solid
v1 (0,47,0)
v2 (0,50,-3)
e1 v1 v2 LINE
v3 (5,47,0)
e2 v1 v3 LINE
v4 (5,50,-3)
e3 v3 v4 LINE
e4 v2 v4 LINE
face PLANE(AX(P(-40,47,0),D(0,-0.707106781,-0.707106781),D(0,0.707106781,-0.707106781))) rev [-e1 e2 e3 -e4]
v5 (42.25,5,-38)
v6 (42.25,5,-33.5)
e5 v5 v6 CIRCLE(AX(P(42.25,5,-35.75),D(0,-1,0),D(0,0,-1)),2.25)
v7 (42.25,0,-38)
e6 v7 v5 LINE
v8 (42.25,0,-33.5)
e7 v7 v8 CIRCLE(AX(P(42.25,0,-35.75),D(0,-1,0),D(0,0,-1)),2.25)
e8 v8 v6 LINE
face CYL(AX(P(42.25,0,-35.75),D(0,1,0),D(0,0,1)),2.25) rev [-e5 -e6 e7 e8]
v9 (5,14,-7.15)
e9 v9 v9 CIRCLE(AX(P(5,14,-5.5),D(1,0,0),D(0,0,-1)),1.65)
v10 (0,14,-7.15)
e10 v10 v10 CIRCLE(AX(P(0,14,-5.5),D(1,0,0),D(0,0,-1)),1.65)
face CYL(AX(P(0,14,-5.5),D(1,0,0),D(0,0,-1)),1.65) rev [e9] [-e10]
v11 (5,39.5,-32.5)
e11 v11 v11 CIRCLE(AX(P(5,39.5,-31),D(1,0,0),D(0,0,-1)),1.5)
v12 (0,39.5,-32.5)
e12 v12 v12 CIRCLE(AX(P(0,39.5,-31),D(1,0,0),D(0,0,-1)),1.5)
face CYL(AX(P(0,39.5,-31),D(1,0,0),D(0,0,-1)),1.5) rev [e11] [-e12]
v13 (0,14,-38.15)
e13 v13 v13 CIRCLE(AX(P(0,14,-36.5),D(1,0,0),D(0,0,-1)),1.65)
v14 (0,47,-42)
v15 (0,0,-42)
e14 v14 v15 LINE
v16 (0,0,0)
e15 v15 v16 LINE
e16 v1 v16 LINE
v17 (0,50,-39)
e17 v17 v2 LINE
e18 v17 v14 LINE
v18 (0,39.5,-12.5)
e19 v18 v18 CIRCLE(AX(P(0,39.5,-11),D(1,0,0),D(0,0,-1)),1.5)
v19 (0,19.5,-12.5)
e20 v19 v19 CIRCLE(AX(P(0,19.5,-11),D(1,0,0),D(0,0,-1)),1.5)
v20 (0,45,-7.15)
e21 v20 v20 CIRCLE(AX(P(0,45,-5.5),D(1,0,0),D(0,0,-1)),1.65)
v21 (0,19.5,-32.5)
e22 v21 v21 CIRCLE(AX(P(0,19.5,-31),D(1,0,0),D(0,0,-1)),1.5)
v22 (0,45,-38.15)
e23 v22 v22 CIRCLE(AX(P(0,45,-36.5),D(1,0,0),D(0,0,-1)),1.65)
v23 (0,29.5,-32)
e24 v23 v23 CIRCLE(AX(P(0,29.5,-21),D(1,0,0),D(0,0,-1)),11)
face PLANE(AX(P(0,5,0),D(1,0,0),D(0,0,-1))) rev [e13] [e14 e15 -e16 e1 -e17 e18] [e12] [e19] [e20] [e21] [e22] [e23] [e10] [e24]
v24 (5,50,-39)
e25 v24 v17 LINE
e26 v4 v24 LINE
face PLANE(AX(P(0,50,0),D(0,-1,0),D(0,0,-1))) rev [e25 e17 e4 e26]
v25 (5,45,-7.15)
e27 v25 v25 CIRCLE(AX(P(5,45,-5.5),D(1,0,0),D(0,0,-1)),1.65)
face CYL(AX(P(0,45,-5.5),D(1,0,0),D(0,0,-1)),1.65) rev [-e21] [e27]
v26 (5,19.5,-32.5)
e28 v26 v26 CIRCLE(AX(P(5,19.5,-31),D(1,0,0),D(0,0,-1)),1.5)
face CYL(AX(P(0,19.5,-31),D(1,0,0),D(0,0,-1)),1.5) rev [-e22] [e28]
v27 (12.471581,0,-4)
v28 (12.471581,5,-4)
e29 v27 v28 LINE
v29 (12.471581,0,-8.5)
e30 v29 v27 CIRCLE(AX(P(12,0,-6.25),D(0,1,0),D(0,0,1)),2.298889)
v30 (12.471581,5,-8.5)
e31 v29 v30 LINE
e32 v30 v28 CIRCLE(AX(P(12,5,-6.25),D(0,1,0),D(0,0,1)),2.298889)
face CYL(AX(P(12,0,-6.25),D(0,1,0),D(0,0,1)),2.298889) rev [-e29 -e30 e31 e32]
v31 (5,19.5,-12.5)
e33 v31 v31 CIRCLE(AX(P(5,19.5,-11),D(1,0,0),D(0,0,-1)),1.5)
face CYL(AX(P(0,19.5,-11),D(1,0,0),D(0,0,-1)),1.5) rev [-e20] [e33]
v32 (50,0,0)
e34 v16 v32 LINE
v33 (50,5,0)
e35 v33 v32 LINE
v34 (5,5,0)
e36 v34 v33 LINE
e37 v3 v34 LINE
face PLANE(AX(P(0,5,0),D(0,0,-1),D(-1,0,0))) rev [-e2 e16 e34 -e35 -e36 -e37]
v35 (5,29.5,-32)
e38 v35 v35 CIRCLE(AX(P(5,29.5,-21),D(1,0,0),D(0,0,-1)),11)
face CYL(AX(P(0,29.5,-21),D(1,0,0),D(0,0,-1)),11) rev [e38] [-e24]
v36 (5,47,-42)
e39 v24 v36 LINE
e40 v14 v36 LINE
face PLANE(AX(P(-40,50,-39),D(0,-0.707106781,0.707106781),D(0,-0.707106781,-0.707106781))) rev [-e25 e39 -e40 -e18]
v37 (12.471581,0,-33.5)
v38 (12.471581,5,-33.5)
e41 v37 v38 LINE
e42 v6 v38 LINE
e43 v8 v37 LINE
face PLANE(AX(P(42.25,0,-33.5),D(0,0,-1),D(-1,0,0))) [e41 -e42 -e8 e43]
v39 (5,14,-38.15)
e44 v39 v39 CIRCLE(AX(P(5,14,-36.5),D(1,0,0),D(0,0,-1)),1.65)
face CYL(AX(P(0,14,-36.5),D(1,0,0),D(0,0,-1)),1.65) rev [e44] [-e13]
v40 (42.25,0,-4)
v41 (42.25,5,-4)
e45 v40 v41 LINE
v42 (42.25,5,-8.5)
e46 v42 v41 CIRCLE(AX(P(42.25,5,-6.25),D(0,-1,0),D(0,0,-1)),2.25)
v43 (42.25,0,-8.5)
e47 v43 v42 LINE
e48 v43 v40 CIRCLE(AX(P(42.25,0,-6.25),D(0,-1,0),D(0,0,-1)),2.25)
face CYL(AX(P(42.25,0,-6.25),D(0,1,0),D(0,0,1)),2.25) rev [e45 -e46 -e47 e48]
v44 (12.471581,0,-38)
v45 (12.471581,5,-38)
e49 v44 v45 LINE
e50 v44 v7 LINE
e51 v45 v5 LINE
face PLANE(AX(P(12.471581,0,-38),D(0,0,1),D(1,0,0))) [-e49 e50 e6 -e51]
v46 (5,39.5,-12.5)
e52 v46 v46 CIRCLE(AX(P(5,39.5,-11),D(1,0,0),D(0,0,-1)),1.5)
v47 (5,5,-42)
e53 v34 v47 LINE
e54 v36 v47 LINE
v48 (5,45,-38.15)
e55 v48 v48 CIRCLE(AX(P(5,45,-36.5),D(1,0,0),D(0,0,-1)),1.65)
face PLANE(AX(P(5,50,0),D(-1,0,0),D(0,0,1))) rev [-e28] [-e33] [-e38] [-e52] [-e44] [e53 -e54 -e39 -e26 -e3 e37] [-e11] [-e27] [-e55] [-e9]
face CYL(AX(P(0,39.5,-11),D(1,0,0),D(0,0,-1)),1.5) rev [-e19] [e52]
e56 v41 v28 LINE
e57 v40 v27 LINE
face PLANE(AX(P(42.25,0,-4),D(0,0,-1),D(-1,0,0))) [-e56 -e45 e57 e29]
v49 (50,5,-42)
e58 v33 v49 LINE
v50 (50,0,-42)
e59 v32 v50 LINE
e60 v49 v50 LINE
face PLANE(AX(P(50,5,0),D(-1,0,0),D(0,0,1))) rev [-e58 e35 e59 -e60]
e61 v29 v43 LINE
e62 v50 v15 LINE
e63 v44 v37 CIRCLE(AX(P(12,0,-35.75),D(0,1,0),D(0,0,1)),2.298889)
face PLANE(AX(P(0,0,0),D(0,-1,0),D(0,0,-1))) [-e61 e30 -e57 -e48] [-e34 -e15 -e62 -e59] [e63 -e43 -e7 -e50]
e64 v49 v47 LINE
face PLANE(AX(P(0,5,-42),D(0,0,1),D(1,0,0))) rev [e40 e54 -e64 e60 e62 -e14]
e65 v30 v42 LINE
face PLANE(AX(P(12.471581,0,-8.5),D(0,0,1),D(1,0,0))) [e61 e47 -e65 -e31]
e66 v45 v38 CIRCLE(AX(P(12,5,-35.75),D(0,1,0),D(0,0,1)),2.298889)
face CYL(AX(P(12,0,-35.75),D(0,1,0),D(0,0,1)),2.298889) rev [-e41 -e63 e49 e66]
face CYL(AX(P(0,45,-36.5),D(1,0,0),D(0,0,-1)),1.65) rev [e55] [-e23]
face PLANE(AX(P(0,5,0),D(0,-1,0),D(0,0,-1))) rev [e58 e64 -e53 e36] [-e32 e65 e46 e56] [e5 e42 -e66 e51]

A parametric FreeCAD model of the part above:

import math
import FreeCAD as App
import Part
import Sketcher
from FreeCAD import Vector


def add_polygon(sketch, points):
    """Adds a closed chain of lines whose ends are joined by coincident constraints."""
    first, n = sketch.GeometryCount, len(points)
    for a, b in zip(points, points[1:] + points[:1]):
        sketch.addGeometry(Part.LineSegment(App.Vector(*a, 0), App.Vector(*b, 0)), False)
    for i in range(n):
        sketch.addConstraint(Sketcher.Constraint("Coincident", first + i, 2, first + (i + 1) % n, 1))

doc = App.newDocument("Part")
params = doc.addObject("Spreadsheet::Sheet", "Params")
for row, (alias, value) in enumerate([
    ("sketch1_width", "50 mm"),
    ("sketch1_height", "42 mm"),
    ("pad1_length", "5 mm"),
    ("sketch2_width", "5 mm"),
    ("sketch2_height", "42 mm"),
    ("pad2_length", "45 mm"),
    ("sketch3_width", "3 mm"),
    ("pocket1_length", "45 mm"),
    ("sketch4_radius", "2.25 mm"),
    ("sketch5_diameter", "22 mm"),
    ("sketch5_diameter2", "3 mm"),
    ("sketch5_diameter3", "3.3 mm"),
], start=1):
    params.set(f"A{row}", alias)
    params.set(f"B{row}", "=" + value)
    params.setAlias(f"B{row}", alias)

body = doc.addObject("PartDesign::Body", "Body")

# Sketch on XZ plane
sketch1 = body.newObject("Sketcher::SketchObject", "Sketch")
sketch1.AttachmentSupport = (doc.getObject("XZ_Plane"), [""])
sketch1.MapMode = "FlatFace"
add_polygon(sketch1, [(0, -42), (0, 0), (50, 0), (50, -42)])  # lines 0-3
sketch1.addConstraint(Sketcher.Constraint("Vertical", 0))
sketch1.addConstraint(Sketcher.Constraint("Horizontal", 1))
sketch1.addConstraint(Sketcher.Constraint("Vertical", 2))
sketch1.addConstraint(Sketcher.Constraint("Horizontal", 3))
sketch1.addConstraint(Sketcher.Constraint("Coincident", 0, 2, -1, 1))
sketch1.addConstraint(Sketcher.Constraint("DistanceX", 1, 1, 1, 2, 50.0))
sketch1.addConstraint(Sketcher.Constraint("DistanceY", 0, 1, 0, 2, 42.0))
sketch1.setExpression("Constraints[9]", "Params.sketch1_width")
sketch1.setExpression("Constraints[10]", "Params.sketch1_height")
pad1 = body.newObject("PartDesign::Pad", "Pad")
pad1.Profile = sketch1
pad1.setExpression("Length", "Params.pad1_length")
pad1.Reversed = True

# Sketch on XZ plane
sketch2 = body.newObject("Sketcher::SketchObject", "Sketch001")
sketch2.AttachmentSupport = (doc.getObject("XZ_Plane"), [""])
sketch2.MapMode = "FlatFace"
sketch2.AttachmentOffset = App.Placement(Vector(0, 0, -5), App.Rotation())
add_polygon(sketch2, [(0, -42), (0, 0), (5, 0), (5, -42)])  # lines 0-3
sketch2.addConstraint(Sketcher.Constraint("Vertical", 0))
sketch2.addConstraint(Sketcher.Constraint("Horizontal", 1))
sketch2.addConstraint(Sketcher.Constraint("Vertical", 2))
sketch2.addConstraint(Sketcher.Constraint("Horizontal", 3))
sketch2.addConstraint(Sketcher.Constraint("Coincident", 0, 2, -1, 1))
sketch2.addConstraint(Sketcher.Constraint("DistanceX", 1, 1, 1, 2, 5.0))
sketch2.addConstraint(Sketcher.Constraint("DistanceY", 0, 1, 0, 2, 42.0))
sketch2.setExpression("Constraints[9]", "Params.sketch2_width")
sketch2.setExpression("Constraints[10]", "Params.sketch2_height")
pad2 = body.newObject("PartDesign::Pad", "Pad001")
pad2.Profile = sketch2
pad2.setExpression("Length", "Params.pad2_length")
pad2.Reversed = True

# Sketch on YZ plane
sketch3 = body.newObject("Sketcher::SketchObject", "Sketch002")
sketch3.AttachmentSupport = (doc.getObject("YZ_Plane"), [""])
sketch3.MapMode = "FlatFace"
sketch3.AttachmentOffset = App.Placement(Vector(0, 0, 5), App.Rotation())
add_polygon(sketch3, [(47, 0), (50, -3), (50, 0)])  # lines 0-2
add_polygon(sketch3, [(50, -42), (50, -39), (47, -42)])  # lines 3-5
sketch3.addConstraint(Sketcher.Constraint("Vertical", 1))
sketch3.addConstraint(Sketcher.Constraint("Horizontal", 2))
sketch3.addConstraint(Sketcher.Constraint("Vertical", 3))
sketch3.addConstraint(Sketcher.Constraint("Horizontal", 5))
sketch3.addConstraint(Sketcher.Constraint("PointOnObject", 1, 2, -1))
sketch3.addConstraint(Sketcher.Constraint("Perpendicular", 0, 4))
sketch3.addConstraint(Sketcher.Constraint("Vertical", 1, 2, 3, 2))
sketch3.addConstraint(Sketcher.Constraint("Vertical", 2, 2, 4, 2))
sketch3.addConstraint(Sketcher.Constraint("Equal", 5, 1))
sketch3.addConstraint(Sketcher.Constraint("DistanceX", 2, 2, 2, 1, 3.0))
sketch3.addConstraint(Sketcher.Constraint("DistanceX", -1, 1, 0, 2, 50.0))
sketch3.addConstraint(Sketcher.Constraint("DistanceY", 3, 2, -1, 1, 39.0))
sketch3.setExpression("Constraints[15]", "Params.sketch3_width")
pocket1 = body.newObject("PartDesign::Pocket", "Pocket")
pocket1.Profile = sketch3
pocket1.setExpression("Length", "Params.pocket1_length")

# Sketch on XZ plane
sketch4 = body.newObject("Sketcher::SketchObject", "Sketch003")
sketch4.AttachmentSupport = (doc.getObject("XZ_Plane"), [""])
sketch4.MapMode = "FlatFace"
sketch4.AttachmentOffset = App.Placement(Vector(0, 0, -5), App.Rotation())
sketch4.addGeometry(Part.LineSegment(Vector(42.2, -8.5, 0), Vector(12.5, -8.5, 0)), False)
sketch4.addGeometry(Part.ArcOfCircle(Part.Circle(Vector(12, -6.2, 0), Vector(0, 0, 1), 2.3), math.radians(78), math.radians(282)), False)
sketch4.addGeometry(Part.LineSegment(Vector(12.5, -4, 0), Vector(42.2, -4, 0)), False)
sketch4.addGeometry(Part.ArcOfCircle(Part.Circle(Vector(42.2, -6.2, 0), Vector(0, 0, 1), 2.2), math.radians(-90), math.radians(90)), False)
sketch4.addGeometry(Part.LineSegment(Vector(42.2, -38, 0), Vector(12.5, -38, 0)), False)
sketch4.addGeometry(Part.ArcOfCircle(Part.Circle(Vector(12, -35.8, 0), Vector(0, 0, 1), 2.3), math.radians(78), math.radians(282)), False)
sketch4.addGeometry(Part.LineSegment(Vector(12.5, -33.5, 0), Vector(42.2, -33.5, 0)), False)
sketch4.addGeometry(Part.ArcOfCircle(Part.Circle(Vector(42.2, -35.8, 0), Vector(0, 0, 1), 2.2), math.radians(-90), math.radians(90)), False)
sketch4.addConstraint(Sketcher.Constraint("Coincident", 0, 2, 1, 2))
sketch4.addConstraint(Sketcher.Constraint("Coincident", 1, 1, 2, 1))
sketch4.addConstraint(Sketcher.Constraint("Tangent", 2, 2, 3, 2))
sketch4.addConstraint(Sketcher.Constraint("Tangent", 3, 1, 0, 1))
sketch4.addConstraint(Sketcher.Constraint("Coincident", 4, 2, 5, 2))
sketch4.addConstraint(Sketcher.Constraint("Coincident", 5, 1, 6, 1))
sketch4.addConstraint(Sketcher.Constraint("Tangent", 6, 2, 7, 2))
sketch4.addConstraint(Sketcher.Constraint("Tangent", 7, 1, 4, 1))
sketch4.addConstraint(Sketcher.Constraint("Horizontal", 0))
sketch4.addConstraint(Sketcher.Constraint("Horizontal", 2))
sketch4.addConstraint(Sketcher.Constraint("Horizontal", 4))
sketch4.addConstraint(Sketcher.Constraint("Horizontal", 6))
sketch4.addConstraint(Sketcher.Constraint("Equal", 1, 5))
sketch4.addConstraint(Sketcher.Constraint("Equal", 3, 7))
sketch4.addConstraint(Sketcher.Constraint("Horizontal", 1, 3, 3, 3))
sketch4.addConstraint(Sketcher.Constraint("Horizontal", 5, 3, 7, 3))
sketch4.addConstraint(Sketcher.Constraint("Vertical", 1, 3, 5, 3))
sketch4.addConstraint(Sketcher.Constraint("Vertical", 3, 3, 7, 3))
sketch4.addConstraint(Sketcher.Constraint("Radius", 3, 2.25))
sketch4.addConstraint(Sketcher.Constraint("DistanceX", -1, 1, 1, 3, 12.0))
sketch4.addConstraint(Sketcher.Constraint("DistanceY", 1, 1, -1, 1, 4.0))
sketch4.addConstraint(Sketcher.Constraint("DistanceY", 4, 2, -1, 1, 38.0))
sketch4.addConstraint(Sketcher.Constraint("DistanceX", -1, 1, 3, 3, 42.25))
sketch4.addConstraint(Sketcher.Constraint("Radius", 1, 2.298889))
sketch4.setExpression("Constraints[18]", "Params.sketch4_radius")
pocket2 = body.newObject("PartDesign::Pocket", "Pocket001")
pocket2.Profile = sketch4
pocket2.Type = "ThroughAll"
pocket2.Reversed = True

# Sketch on YZ plane
sketch5 = body.newObject("Sketcher::SketchObject", "Sketch004")
sketch5.AttachmentSupport = (doc.getObject("YZ_Plane"), [""])
sketch5.MapMode = "FlatFace"
sketch5.AttachmentOffset = App.Placement(Vector(0, 0, 5), App.Rotation())
sketch5.addGeometry(Part.Circle(Vector(29.5, -21, 0), Vector(0, 0, 1), 11), False)
sketch5.addGeometry(Part.Circle(Vector(45, -5.5, 0), Vector(0, 0, 1), 1.6), False)
sketch5.addGeometry(Part.Circle(Vector(39.5, -31, 0), Vector(0, 0, 1), 1.5), False)
sketch5.addGeometry(Part.Circle(Vector(14, -5.5, 0), Vector(0, 0, 1), 1.6), False)
sketch5.addGeometry(Part.Circle(Vector(19.5, -31, 0), Vector(0, 0, 1), 1.5), False)
sketch5.addGeometry(Part.Circle(Vector(14, -36.5, 0), Vector(0, 0, 1), 1.6), False)
sketch5.addGeometry(Part.Circle(Vector(19.5, -11, 0), Vector(0, 0, 1), 1.5), False)
sketch5.addGeometry(Part.Circle(Vector(39.5, -11, 0), Vector(0, 0, 1), 1.5), False)
sketch5.addGeometry(Part.Circle(Vector(45, -36.5, 0), Vector(0, 0, 1), 1.6), False)
sketch5.addConstraint(Sketcher.Constraint("Equal", 1, 3))
sketch5.addConstraint(Sketcher.Constraint("Equal", 2, 4))
sketch5.addConstraint(Sketcher.Constraint("Equal", 3, 5))
sketch5.addConstraint(Sketcher.Constraint("Equal", 4, 6))
sketch5.addConstraint(Sketcher.Constraint("Equal", 6, 7))
sketch5.addConstraint(Sketcher.Constraint("Equal", 5, 8))
sketch5.addConstraint(Sketcher.Constraint("Horizontal", 1, 3, 3, 3))
sketch5.addConstraint(Sketcher.Constraint("Horizontal", 2, 3, 4, 3))
sketch5.addConstraint(Sketcher.Constraint("Horizontal", 6, 3, 7, 3))
sketch5.addConstraint(Sketcher.Constraint("Horizontal", 5, 3, 8, 3))
sketch5.addConstraint(Sketcher.Constraint("Vertical", 3, 3, 5, 3))
sketch5.addConstraint(Sketcher.Constraint("Vertical", 4, 3, 6, 3))
sketch5.addConstraint(Sketcher.Constraint("Vertical", 2, 3, 7, 3))
sketch5.addConstraint(Sketcher.Constraint("Vertical", 1, 3, 8, 3))
sketch5.addConstraint(Sketcher.Constraint("Diameter", 0, 22.0))
sketch5.addConstraint(Sketcher.Constraint("Diameter", 2, 3.0))
sketch5.addConstraint(Sketcher.Constraint("Diameter", 1, 3.3))
sketch5.addConstraint(Sketcher.Constraint("DistanceY", 0, 3, -1, 1, 21.0))
sketch5.addConstraint(Sketcher.Constraint("DistanceX", -1, 1, 1, 3, 45.0))
sketch5.addConstraint(Sketcher.Constraint("DistanceY", 2, 3, -1, 1, 31.0))
sketch5.addConstraint(Sketcher.Constraint("DistanceX", -1, 1, 3, 3, 14.0))
sketch5.addConstraint(Sketcher.Constraint("DistanceY", 6, 3, -1, 1, 11.0))
sketch5.addConstraint(Sketcher.Constraint("DistanceX", 0, 3, 2, 3, 10.0))
sketch5.addConstraint(Sketcher.Constraint("DistanceX", 4, 3, 0, 3, 10.0))
sketch5.addConstraint(Sketcher.Constraint("DistanceY", 5, 3, 3, 3, 31.0))
sketch5.addConstraint(Sketcher.Constraint("DistanceX", -1, 1, 0, 3, 29.5))
sketch5.addConstraint(Sketcher.Constraint("DistanceY", 1, 3, -1, 1, 5.5))
sketch5.setExpression("Constraints[14]", "Params.sketch5_diameter")
sketch5.setExpression("Constraints[15]", "Params.sketch5_diameter2")
sketch5.setExpression("Constraints[16]", "Params.sketch5_diameter3")
pocket3 = body.newObject("PartDesign::Pocket", "Pocket002")
pocket3.Profile = sketch5
pocket3.Type = "ThroughAll"

doc.recompute()
